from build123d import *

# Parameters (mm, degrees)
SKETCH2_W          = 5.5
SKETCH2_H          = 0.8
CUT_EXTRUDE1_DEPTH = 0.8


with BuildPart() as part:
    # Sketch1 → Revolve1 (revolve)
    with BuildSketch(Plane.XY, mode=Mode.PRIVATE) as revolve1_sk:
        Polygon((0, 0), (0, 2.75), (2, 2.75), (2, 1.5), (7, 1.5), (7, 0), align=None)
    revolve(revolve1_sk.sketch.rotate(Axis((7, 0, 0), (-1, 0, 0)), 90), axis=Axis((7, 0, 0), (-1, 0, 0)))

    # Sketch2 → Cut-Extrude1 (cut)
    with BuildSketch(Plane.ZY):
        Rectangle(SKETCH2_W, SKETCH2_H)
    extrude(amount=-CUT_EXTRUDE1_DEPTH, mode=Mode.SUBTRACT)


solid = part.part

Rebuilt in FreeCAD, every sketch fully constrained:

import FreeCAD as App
import Part
import Sketcher


def add_polygon(sketch, points):
    """Adds a closed chain of lines whose ends are joined by coincident constraints."""
    first, n = sketch.GeometryCount, len(points)
    for a, b in zip(points, points[1:] + points[:1]):
        sketch.addGeometry(Part.LineSegment(App.Vector(*a, 0), App.Vector(*b, 0)), False)
    for i in range(n):
        sketch.addConstraint(Sketcher.Constraint("Coincident", first + i, 2, first + (i + 1) % n, 1))

doc = App.newDocument("Part")
body = doc.addObject("PartDesign::Body", "Body")

# Sketch on XY plane
sketch1 = body.newObject("Sketcher::SketchObject", "Sketch")
sketch1.AttachmentSupport = (doc.getObject("XY_Plane"), [""])
sketch1.MapMode = "FlatFace"
add_polygon(sketch1, [(0, 2.8), (0, 0), (7, 0), (7, 1.5), (2, 1.5), (2, 2.8)])  # lines 0-5
sketch1.addConstraint(Sketcher.Constraint("Vertical", 0))
sketch1.addConstraint(Sketcher.Constraint("Horizontal", 1))
sketch1.addConstraint(Sketcher.Constraint("Vertical", 2))
sketch1.addConstraint(Sketcher.Constraint("Horizontal", 3))
sketch1.addConstraint(Sketcher.Constraint("Vertical", 4))
sketch1.addConstraint(Sketcher.Constraint("Horizontal", 5))
sketch1.addConstraint(Sketcher.Constraint("Coincident", 0, 2, -1, 1))
sketch1.addConstraint(Sketcher.Constraint("DistanceX", 1, 1, 1, 2, 7.0))
sketch1.addConstraint(Sketcher.Constraint("DistanceX", 3, 2, 3, 1, 5.0))
sketch1.addConstraint(Sketcher.Constraint("DistanceY", 2, 1, 2, 2, 1.5))
sketch1.addConstraint(Sketcher.Constraint("DistanceY", 0, 2, 0, 1, 2.75))
revolution = body.newObject("PartDesign::Revolution", "Revolution")
revolution.Profile = sketch1
revolution.ReferenceAxis = (sketch1, ["H_Axis"])
revolution.Angle = 360

# Sketch on YZ plane
sketch2 = body.newObject("Sketcher::SketchObject", "Sketch001")
sketch2.AttachmentSupport = (doc.getObject("YZ_Plane"), [""])
sketch2.MapMode = "FlatFace"
add_polygon(sketch2, [(0.4, -2.8), (-0.4, -2.8), (-0.4, 2.8), (0.4, 2.8)])  # lines 0-3
sketch2.addConstraint(Sketcher.Constraint("Horizontal", 0))
sketch2.addConstraint(Sketcher.Constraint("Vertical", 1))
sketch2.addConstraint(Sketcher.Constraint("Horizontal", 2))
sketch2.addConstraint(Sketcher.Constraint("Vertical", 3))
sketch2.addConstraint(Sketcher.Constraint("Symmetric", 0, 2, 2, 2, -1, 1))
sketch2.addConstraint(Sketcher.Constraint("DistanceX", 0, 2, 0, 1, 0.8))
sketch2.addConstraint(Sketcher.Constraint("DistanceY", 1, 1, 1, 2, 5.5))
pocket1 = body.newObject("PartDesign::Pocket", "Pocket")
pocket1.Profile = sketch2
pocket1.Length = 0.8
pocket1.Reversed = True

doc.recompute()
